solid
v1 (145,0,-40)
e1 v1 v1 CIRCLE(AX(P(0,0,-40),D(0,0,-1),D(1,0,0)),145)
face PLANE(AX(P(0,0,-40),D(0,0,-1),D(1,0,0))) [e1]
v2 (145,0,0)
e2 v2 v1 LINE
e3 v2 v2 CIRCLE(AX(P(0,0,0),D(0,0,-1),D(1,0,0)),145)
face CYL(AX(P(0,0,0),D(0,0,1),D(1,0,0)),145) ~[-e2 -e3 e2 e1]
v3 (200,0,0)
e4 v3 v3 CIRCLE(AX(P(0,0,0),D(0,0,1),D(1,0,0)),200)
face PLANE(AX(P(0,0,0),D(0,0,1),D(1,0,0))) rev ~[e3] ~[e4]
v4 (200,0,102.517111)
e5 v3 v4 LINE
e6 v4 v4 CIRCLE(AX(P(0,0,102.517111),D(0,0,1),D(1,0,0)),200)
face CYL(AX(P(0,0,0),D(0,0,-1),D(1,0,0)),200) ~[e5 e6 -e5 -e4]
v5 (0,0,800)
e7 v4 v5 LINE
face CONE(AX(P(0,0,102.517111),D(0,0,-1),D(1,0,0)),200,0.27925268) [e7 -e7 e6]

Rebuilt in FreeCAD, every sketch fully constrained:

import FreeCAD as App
import Part
import Sketcher

V = App.Vector
Q = App.Units.Quantity


def edges_at(feature, points):
    """Names of the edges that pass closest to the given points."""
    edges = feature.Shape.Edges
    near = lambda p: min(range(len(edges)), key=lambda i: edges[i].distToShape(Part.Vertex(*p))[0])
    return sorted({f"Edge{near(p) + 1}" for p in points})

doc = App.newDocument("Part")
body = doc.addObject("PartDesign::Body", "Body")

# Sketch on XY plane
sketch1 = body.newObject("Sketcher::SketchObject", "Sketch")
sketch1.AttachmentSupport = (doc.getObject("XY_Plane"), [""])
sketch1.MapMode = "FlatFace"
sketch1.addGeometry(Part.Circle(V(0, 0, 0), V(0, 0, 1), 200), False)
sketch1.addConstraint(Sketcher.Constraint("Coincident", 0, 3, -1, 1))
sketch1.addConstraint(Sketcher.Constraint("Diameter", 0, Q("400 mm")))
pad1 = body.newObject("PartDesign::Pad", "Pad")
pad1.Profile = sketch1
pad1.Length = 800
doc.recompute()

chamfer = body.newObject("PartDesign::Chamfer", "Chamfer")
chamfer.Base = (pad1, edges_at(pad1, [(-200, 0, 800)]))
chamfer.ChamferType = "Two distances"
chamfer.Size = 697.482889
chamfer.Size2 = 200

# Sketch on XY plane
sketch2 = body.newObject("Sketcher::SketchObject", "Sketch001")
sketch2.AttachmentSupport = (doc.getObject("XY_Plane"), [""])
sketch2.MapMode = "FlatFace"
sketch2.addGeometry(Part.Circle(V(0, 0, 0), V(0, 0, 1), 145), False)
sketch2.addConstraint(Sketcher.Constraint("Coincident", 0, 3, -1, 1))
sketch2.addConstraint(Sketcher.Constraint("Diameter", 0, Q("290 mm")))
pad2 = body.newObject("PartDesign::Pad", "Pad001")
pad2.Profile = sketch2
pad2.Length = 40
pad2.Reversed = True

doc.recompute()
